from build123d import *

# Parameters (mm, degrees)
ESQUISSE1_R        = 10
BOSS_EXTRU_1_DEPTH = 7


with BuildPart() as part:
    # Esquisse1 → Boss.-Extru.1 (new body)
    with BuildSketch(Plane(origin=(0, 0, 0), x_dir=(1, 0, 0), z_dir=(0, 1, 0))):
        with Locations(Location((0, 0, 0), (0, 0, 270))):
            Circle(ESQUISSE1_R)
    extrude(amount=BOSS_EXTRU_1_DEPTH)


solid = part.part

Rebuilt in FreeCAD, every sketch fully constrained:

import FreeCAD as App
import Part
import Sketcher

doc = App.newDocument("Part")
body = doc.addObject("PartDesign::Body", "Body")

# Sketch on XZ plane
sketch1 = body.newObject("Sketcher::SketchObject", "Sketch")
sketch1.AttachmentSupport = (doc.getObject("XZ_Plane"), [""])
sketch1.MapMode = "FlatFace"
sketch1.addGeometry(Part.Circle(App.Vector(0, 0, 0), App.Vector(0, 0, 1), 10), False)
sketch1.addConstraint([
    Sketcher.Constraint("Coincident", 0, 3, -1, 1),
    Sketcher.Constraint("Diameter", 0, 20.0),
])
pad1 = body.newObject("PartDesign::Pad", "Pad")
pad1.Profile = sketch1
pad1.Length = 7
pad1.Reversed = True

doc.recompute()
